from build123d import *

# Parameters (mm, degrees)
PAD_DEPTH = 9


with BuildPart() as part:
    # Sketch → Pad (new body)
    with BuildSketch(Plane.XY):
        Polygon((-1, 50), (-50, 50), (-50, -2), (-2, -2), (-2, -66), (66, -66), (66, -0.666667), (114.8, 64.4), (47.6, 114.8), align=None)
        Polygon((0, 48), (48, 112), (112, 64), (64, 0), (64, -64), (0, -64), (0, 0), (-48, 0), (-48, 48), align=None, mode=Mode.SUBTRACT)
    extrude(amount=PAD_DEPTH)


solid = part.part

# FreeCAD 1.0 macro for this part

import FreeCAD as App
import Part
import Sketcher

V = App.Vector

doc = App.newDocument("Part")
body = doc.addObject("PartDesign::Body", "Body")

# Sketch on XY plane
sketch1 = body.newObject("Sketcher::SketchObject", "Sketch")
sketch1.AttachmentSupport = (doc.getObject("XY_Plane"), [""])
sketch1.MapMode = "FlatFace"
sketch1.addGeometry([
    Part.LineSegment(V(-1, 50, 0), V(-50, 50, 0)),  # 0
    Part.LineSegment(V(-50, 50, 0), V(-50, -2, 0)),  # 1
    Part.LineSegment(V(-50, -2, 0), V(-2, -2, 0)),  # 2
    Part.LineSegment(V(-2, -2, 0), V(-2, -66, 0)),  # 3
    Part.LineSegment(V(-2, -66, 0), V(66, -66, 0)),  # 4
    Part.LineSegment(V(66, -66, 0), V(66, -0.666667, 0)),  # 5
    Part.LineSegment(V(66, -0.666667, 0), V(114.8, 64.4, 0)),  # 6
    Part.LineSegment(V(114.8, 64.4, 0), V(47.6, 114.8, 0)),  # 7
    Part.LineSegment(V(47.6, 114.8, 0), V(-1, 50, 0)),  # 8
    Part.LineSegment(V(-48, 48, 0), V(0, 48, 0)),  # 9
    Part.LineSegment(V(0, 48, 0), V(48, 112, 0)),  # 10
    Part.LineSegment(V(48, 112, 0), V(112, 64, 0)),  # 11
    Part.LineSegment(V(112, 64, 0), V(64, 0, 0)),  # 12
    Part.LineSegment(V(64, 0, 0), V(64, -64, 0)),  # 13
    Part.LineSegment(V(64, -64, 0), V(0, -64, 0)),  # 14
    Part.LineSegment(V(0, -64, 0), V(0, 0, 0)),  # 15
    Part.LineSegment(V(0, 0, 0), V(-48, 0, 0)),  # 16
    Part.LineSegment(V(-48, 0, 0), V(-48, 48, 0)),  # 17
], False)
sketch1.addConstraint([
    Sketcher.Constraint("Coincident", 0, 2, 1, 1),
    Sketcher.Constraint("Coincident", 1, 2, 2, 1),
    Sketcher.Constraint("Coincident", 2, 2, 3, 1),
    Sketcher.Constraint("Coincident", 3, 2, 4, 1),
    Sketcher.Constraint("Coincident", 4, 2, 5, 1),
    Sketcher.Constraint("Coincident", 5, 2, 6, 1),
    Sketcher.Constraint("Coincident", 6, 2, 7, 1),
    Sketcher.Constraint("Coincident", 7, 2, 8, 1),
    Sketcher.Constraint("Coincident", 8, 2, 0, 1),
    Sketcher.Constraint("Coincident", 9, 2, 10, 1),
    Sketcher.Constraint("Coincident", 10, 2, 11, 1),
    Sketcher.Constraint("Coincident", 11, 2, 12, 1),
    Sketcher.Constraint("Coincident", 12, 2, 13, 1),
    Sketcher.Constraint("Coincident", 13, 2, 14, 1),
    Sketcher.Constraint("Coincident", 14, 2, 15, 1),
    Sketcher.Constraint("Coincident", 15, 2, 16, 1),
    Sketcher.Constraint("Coincident", 16, 2, 17, 1),
    Sketcher.Constraint("Coincident", 17, 2, 9, 1),
    Sketcher.Constraint("Horizontal", 0),
    Sketcher.Constraint("Vertical", 1),
    Sketcher.Constraint("Horizontal", 2),
    Sketcher.Constraint("Vertical", 3),
    Sketcher.Constraint("Horizontal", 4),
    Sketcher.Constraint("Vertical", 5),
    Sketcher.Constraint("Horizontal", 9),
    Sketcher.Constraint("Vertical", 13),
    Sketcher.Constraint("Horizontal", 14),
    Sketcher.Constraint("Vertical", 15),
    Sketcher.Constraint("Horizontal", 16),
    Sketcher.Constraint("Vertical", 17),
    Sketcher.Constraint("Coincident", 15, 2, -1, 1),
    Sketcher.Constraint("PointOnObject", 9, 2, -2),
    Sketcher.Constraint("PointOnObject", 12, 2, -1),
    Sketcher.Constraint("Perpendicular", 6, 7),
    Sketcher.Constraint("Perpendicular", 7, 8),
    Sketcher.Constraint("Parallel", 8, 10),
    Sketcher.Constraint("Perpendicular", 10, 11),
    Sketcher.Constraint("Perpendicular", 11, 12),
    Sketcher.Constraint("Equal", 2, 9),
    Sketcher.Constraint("Equal", 14, 3),
    Sketcher.Constraint("Equal", 3, 13),
    Sketcher.Constraint("Equal", 16, 17),
    Sketcher.Constraint("Equal", 10, 11),
    Sketcher.Constraint("Equal", 11, 12),
    Sketcher.Constraint("DistanceX", 0, 2, 0, 1, 49.0),
    Sketcher.Constraint("DistanceX", 2, 1, 2, 2, 48.0),
    Sketcher.Constraint("DistanceX", 4, 1, 4, 2, 68.0),
    Sketcher.Constraint("DistanceX", 14, 2, 14, 1, 64.0),
    Sketcher.Constraint("DistanceY", 1, 2, 1, 1, 52.0),
    Sketcher.Constraint("Distance", 7, 84.0),
    Sketcher.Constraint("Distance", 8, 81.0),
    Sketcher.Constraint("DistanceX", 0, 2, -1, 1, 50.0),
    Sketcher.Constraint("DistanceY", -1, 1, 0, 2, 50.0),
])
pad1 = body.newObject("PartDesign::Pad", "Pad")
pad1.Profile = sketch1
pad1.Length = 9

doc.recompute()
